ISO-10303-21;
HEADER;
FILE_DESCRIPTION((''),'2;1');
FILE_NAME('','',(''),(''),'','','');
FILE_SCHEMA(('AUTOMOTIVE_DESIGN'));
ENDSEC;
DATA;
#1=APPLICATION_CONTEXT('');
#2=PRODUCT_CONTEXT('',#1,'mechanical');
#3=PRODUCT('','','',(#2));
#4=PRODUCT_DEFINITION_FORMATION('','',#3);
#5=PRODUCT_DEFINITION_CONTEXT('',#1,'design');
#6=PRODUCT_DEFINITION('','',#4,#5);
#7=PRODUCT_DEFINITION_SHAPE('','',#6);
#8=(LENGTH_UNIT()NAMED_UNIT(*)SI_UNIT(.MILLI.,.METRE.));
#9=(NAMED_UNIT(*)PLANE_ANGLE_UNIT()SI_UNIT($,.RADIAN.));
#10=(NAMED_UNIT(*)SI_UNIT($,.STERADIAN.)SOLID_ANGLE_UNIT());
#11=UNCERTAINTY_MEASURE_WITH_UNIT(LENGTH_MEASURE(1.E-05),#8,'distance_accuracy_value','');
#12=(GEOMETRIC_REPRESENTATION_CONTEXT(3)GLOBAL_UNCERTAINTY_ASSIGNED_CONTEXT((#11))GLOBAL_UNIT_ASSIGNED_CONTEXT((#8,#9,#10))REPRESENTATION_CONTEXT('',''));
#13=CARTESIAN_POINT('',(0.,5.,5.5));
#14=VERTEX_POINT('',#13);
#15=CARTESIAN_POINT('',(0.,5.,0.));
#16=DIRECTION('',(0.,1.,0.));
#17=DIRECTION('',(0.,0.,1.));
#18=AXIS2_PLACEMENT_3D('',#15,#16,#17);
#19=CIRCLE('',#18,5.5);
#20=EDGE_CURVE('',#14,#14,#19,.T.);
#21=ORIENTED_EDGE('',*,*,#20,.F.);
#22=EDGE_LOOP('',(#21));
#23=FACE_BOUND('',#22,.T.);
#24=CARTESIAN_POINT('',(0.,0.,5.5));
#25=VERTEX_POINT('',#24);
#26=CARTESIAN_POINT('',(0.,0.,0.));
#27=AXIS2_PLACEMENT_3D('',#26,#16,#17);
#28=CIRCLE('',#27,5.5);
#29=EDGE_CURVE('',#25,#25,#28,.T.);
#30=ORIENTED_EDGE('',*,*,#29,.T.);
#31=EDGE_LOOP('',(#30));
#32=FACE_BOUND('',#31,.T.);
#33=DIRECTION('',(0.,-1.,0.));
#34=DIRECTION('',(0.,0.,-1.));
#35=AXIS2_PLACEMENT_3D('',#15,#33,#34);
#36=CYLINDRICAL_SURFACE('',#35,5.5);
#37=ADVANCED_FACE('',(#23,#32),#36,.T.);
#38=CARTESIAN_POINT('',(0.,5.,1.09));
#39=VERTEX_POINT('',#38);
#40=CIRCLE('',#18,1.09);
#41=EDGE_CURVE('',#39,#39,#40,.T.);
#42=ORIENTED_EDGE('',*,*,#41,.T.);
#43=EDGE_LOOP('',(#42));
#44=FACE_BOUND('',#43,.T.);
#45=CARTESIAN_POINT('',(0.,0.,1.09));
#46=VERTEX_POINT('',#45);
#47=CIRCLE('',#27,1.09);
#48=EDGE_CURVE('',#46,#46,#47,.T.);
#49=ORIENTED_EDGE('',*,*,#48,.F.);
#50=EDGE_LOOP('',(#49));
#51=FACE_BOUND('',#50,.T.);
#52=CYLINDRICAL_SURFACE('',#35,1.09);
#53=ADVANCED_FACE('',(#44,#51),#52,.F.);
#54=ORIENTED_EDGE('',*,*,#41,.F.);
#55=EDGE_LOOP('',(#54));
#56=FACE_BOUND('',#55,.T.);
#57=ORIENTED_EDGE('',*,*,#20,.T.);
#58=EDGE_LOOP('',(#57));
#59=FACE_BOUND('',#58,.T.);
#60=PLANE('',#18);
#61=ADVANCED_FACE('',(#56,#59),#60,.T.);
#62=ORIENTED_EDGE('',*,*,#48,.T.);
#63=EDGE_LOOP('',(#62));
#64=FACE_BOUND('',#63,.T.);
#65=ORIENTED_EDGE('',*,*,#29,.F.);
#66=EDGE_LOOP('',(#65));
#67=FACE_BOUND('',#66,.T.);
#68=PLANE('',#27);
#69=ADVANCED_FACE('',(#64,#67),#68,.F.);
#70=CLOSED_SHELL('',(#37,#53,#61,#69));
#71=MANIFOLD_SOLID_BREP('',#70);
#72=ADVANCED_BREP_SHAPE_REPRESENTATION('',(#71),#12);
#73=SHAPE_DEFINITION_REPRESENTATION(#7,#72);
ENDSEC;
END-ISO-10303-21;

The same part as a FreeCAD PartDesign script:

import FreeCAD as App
import Part
import Sketcher

doc = App.newDocument("Part")
body = doc.addObject("PartDesign::Body", "Body")

# Sketch on XZ plane
sketch1 = body.newObject("Sketcher::SketchObject", "Sketch")
sketch1.AttachmentSupport = (doc.getObject("XZ_Plane"), [""])
sketch1.MapMode = "FlatFace"
sketch1.addGeometry([
    Part.Circle(App.Vector(0, 0, 0), App.Vector(0, 0, 1), 5.5),
    Part.Circle(App.Vector(0, 0, 0), App.Vector(0, 0, 1), 1.1),
], False)
sketch1.addConstraint([
    Sketcher.Constraint("Coincident", 0, 3, -1, 1),
    Sketcher.Constraint("Coincident", 1, 3, -1, 1),
    Sketcher.Constraint("Diameter", 0, 11.0),
    Sketcher.Constraint("Diameter", 1, 2.18),
])
pad1 = body.newObject("PartDesign::Pad", "Pad")
pad1.Profile = sketch1
pad1.Length = 5
pad1.Reversed = True

doc.recompute()
